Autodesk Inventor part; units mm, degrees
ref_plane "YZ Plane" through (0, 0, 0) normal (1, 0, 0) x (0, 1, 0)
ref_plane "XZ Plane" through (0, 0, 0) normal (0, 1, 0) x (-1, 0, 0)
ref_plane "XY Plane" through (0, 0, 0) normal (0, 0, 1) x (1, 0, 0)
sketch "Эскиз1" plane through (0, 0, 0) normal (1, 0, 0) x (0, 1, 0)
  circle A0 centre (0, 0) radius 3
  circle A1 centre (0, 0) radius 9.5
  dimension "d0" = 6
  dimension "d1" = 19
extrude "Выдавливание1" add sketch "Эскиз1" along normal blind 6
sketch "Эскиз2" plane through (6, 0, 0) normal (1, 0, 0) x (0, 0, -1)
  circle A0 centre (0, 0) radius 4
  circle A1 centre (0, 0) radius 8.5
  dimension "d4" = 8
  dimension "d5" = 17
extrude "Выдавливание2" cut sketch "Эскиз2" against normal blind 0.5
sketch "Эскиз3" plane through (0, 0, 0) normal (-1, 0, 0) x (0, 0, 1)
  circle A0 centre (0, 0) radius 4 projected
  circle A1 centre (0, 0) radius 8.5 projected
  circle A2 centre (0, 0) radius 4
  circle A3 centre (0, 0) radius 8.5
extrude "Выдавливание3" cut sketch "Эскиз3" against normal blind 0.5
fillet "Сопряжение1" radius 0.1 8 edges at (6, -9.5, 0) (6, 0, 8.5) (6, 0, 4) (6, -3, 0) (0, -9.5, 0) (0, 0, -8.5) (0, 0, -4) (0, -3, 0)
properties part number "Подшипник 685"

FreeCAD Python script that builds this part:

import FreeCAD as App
import Part
import Sketcher


def edges_at(feature, points):
    """Names of the edges that pass closest to the given points."""
    edges = feature.Shape.Edges
    near = lambda p: min(range(len(edges)), key=lambda i: edges[i].distToShape(Part.Vertex(*p))[0])
    return sorted({f"Edge{near(p) + 1}" for p in points})

doc = App.newDocument("Part")
body = doc.addObject("PartDesign::Body", "Body")

# Sketch on YZ plane
sketch1 = body.newObject("Sketcher::SketchObject", "Sketch")
sketch1.AttachmentSupport = (doc.getObject("YZ_Plane"), [""])
sketch1.MapMode = "FlatFace"
sketch1.addGeometry([
    Part.Circle(App.Vector(0, 0, 0), App.Vector(0, 0, 1), 9.5),
    Part.Circle(App.Vector(0, 0, 0), App.Vector(0, 0, 1), 3),
], False)
sketch1.addConstraint([
    Sketcher.Constraint("Coincident", 0, 3, -1, 1),
    Sketcher.Constraint("Coincident", 1, 3, -1, 1),
    Sketcher.Constraint("Diameter", 0, 19.0),
    Sketcher.Constraint("Diameter", 1, 6.0),
])
pad1 = body.newObject("PartDesign::Pad", "Pad")
pad1.Profile = sketch1
pad1.Length = 6

# Sketch on YZ plane
sketch2 = body.newObject("Sketcher::SketchObject", "Sketch001")
sketch2.AttachmentSupport = (doc.getObject("YZ_Plane"), [""])
sketch2.MapMode = "FlatFace"
sketch2.AttachmentOffset = App.Placement(App.Vector(0, 0, 6), App.Rotation())
sketch2.addGeometry([
    Part.Circle(App.Vector(0, 0, 0), App.Vector(0, 0, 1), 8.5),
    Part.Circle(App.Vector(0, 0, 0), App.Vector(0, 0, 1), 4),
], False)
sketch2.addConstraint([
    Sketcher.Constraint("Coincident", 0, 3, -1, 1),
    Sketcher.Constraint("Coincident", 1, 3, -1, 1),
    Sketcher.Constraint("Diameter", 0, 17.0),
    Sketcher.Constraint("Diameter", 1, 8.0),
])
pocket1 = body.newObject("PartDesign::Pocket", "Pocket")
pocket1.Profile = sketch2
pocket1.Length = 0.5

# Sketch on YZ plane
sketch3 = body.newObject("Sketcher::SketchObject", "Sketch002")
sketch3.AttachmentSupport = (doc.getObject("YZ_Plane"), [""])
sketch3.MapMode = "FlatFace"
sketch3.addGeometry([
    Part.Circle(App.Vector(0, 0, 0), App.Vector(0, 0, 1), 8.5),
    Part.Circle(App.Vector(0, 0, 0), App.Vector(0, 0, 1), 4),
], False)
sketch3.addConstraint([
    Sketcher.Constraint("Coincident", 0, 3, -1, 1),
    Sketcher.Constraint("Coincident", 1, 3, -1, 1),
    Sketcher.Constraint("Diameter", 0, 17.0),
    Sketcher.Constraint("Diameter", 1, 8.0),
])
pocket2 = body.newObject("PartDesign::Pocket", "Pocket001")
pocket2.Profile = sketch3
pocket2.Length = 0.5
pocket2.Reversed = True
doc.recompute()

fillet = body.newObject("PartDesign::Fillet", "Fillet")
fillet.Base = (pocket2, edges_at(pocket2, [
    (6, -9.5, 0),
    (6, 0, 8.5),
    (6, 0, 4),
    (6, -3, 0),
    (0, -9.5, 0),
    (0, 0, -8.5),
    (0, 0, -4),
    (0, -3, 0),
]))
fillet.Radius = 0.1

doc.recompute()
